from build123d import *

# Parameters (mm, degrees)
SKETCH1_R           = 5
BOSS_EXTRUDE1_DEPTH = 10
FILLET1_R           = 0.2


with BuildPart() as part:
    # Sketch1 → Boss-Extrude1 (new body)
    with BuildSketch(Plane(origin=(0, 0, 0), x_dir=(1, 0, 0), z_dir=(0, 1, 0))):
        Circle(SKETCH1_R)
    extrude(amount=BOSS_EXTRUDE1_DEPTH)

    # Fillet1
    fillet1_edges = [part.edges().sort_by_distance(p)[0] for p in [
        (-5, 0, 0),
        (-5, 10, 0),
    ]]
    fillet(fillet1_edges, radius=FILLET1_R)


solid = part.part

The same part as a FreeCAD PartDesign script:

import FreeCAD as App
import Part
import Sketcher
Q = App.Units.Quantity


def edges_at(feature, points):
    """Names of the edges that pass closest to the given points."""
    edges = feature.Shape.Edges
    near = lambda p: min(range(len(edges)), key=lambda i: edges[i].distToShape(Part.Vertex(*p))[0])
    return sorted({f"Edge{near(p) + 1}" for p in points})

doc = App.newDocument("Part")
body = doc.addObject("PartDesign::Body", "Body")

# Sketch on XZ plane
sketch1 = body.newObject("Sketcher::SketchObject", "Sketch")
sketch1.AttachmentSupport = (doc.getObject("XZ_Plane"), [""])
sketch1.MapMode = "FlatFace"
sketch1.addGeometry(Part.Circle(App.Vector(0, 0, 0), App.Vector(0, 0, 1), 5), False)
sketch1.addConstraint([
    Sketcher.Constraint("Coincident", 0, 3, -1, 1),
    Sketcher.Constraint("Diameter", 0, Q("10 mm")),
])
pad1 = body.newObject("PartDesign::Pad", "Pad")
pad1.Profile = sketch1
pad1.Length = 10
pad1.Reversed = True
doc.recompute()

fillet = body.newObject("PartDesign::Fillet", "Fillet")
fillet.Base = (pad1, edges_at(pad1, [(-5, 0, 0), (-5, 10, 0)]))
fillet.Radius = 0.2

doc.recompute()
